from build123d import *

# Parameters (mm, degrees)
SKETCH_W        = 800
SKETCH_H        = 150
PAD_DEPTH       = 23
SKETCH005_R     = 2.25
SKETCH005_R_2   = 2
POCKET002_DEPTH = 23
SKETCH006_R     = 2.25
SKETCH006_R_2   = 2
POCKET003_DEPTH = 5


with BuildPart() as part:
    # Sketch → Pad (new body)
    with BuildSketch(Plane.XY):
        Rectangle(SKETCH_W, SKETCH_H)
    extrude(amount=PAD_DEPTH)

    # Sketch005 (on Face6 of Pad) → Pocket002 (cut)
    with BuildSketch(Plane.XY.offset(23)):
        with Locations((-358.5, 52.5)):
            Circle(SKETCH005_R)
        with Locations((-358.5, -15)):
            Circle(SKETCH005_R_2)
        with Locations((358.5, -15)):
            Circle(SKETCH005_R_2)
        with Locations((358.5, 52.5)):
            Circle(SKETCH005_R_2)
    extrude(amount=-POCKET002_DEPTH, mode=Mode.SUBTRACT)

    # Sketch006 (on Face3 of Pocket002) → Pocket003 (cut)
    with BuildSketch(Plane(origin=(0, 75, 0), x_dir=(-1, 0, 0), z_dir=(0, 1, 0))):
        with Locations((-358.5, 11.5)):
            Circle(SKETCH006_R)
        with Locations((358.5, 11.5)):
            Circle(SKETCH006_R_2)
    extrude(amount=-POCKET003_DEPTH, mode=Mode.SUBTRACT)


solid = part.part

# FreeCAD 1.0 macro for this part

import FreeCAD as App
import Part
import Sketcher
from FreeCAD import Vector


def add_polygon(sketch, points):
    """Adds a closed chain of lines whose ends are joined by coincident constraints."""
    first, n = sketch.GeometryCount, len(points)
    for a, b in zip(points, points[1:] + points[:1]):
        sketch.addGeometry(Part.LineSegment(App.Vector(*a, 0), App.Vector(*b, 0)), False)
    for i in range(n):
        sketch.addConstraint(Sketcher.Constraint("Coincident", first + i, 2, first + (i + 1) % n, 1))

doc = App.newDocument("Part")
params = doc.addObject("Spreadsheet::Sheet", "Params")
for row, (alias, value) in enumerate([
    ("sketch1_width", "800 mm"),
    ("sketch1_height", "150 mm"),
    ("pad1_length", "23 mm"),
    ("sketch2_diameter", "4 mm"),
    ("sketch2_diameter2", "4.5 mm"),
    ("pocket1_length", "23 mm"),
    ("sketch3_diameter", "4 mm"),
    ("sketch3_diameter2", "4.5 mm"),
    ("pocket2_length", "5 mm"),
], start=1):
    params.set(f"A{row}", alias)
    params.set(f"B{row}", "=" + value)
    params.setAlias(f"B{row}", alias)

body = doc.addObject("PartDesign::Body", "Body")

sketch1 = doc.addObject("Sketcher::SketchObject", "Sketch")
body.addObject(sketch1)
sketch1.AttachmentSupport = (doc.XY_Plane, [""])
sketch1.MapMode = "FlatFace"
add_polygon(sketch1, [(-400, 75), (-400, -75), (400, -75), (400, 75)])
sketch1.addConstraint(Sketcher.Constraint("Vertical", 0))
sketch1.addConstraint(Sketcher.Constraint("Horizontal", 1))
sketch1.addConstraint(Sketcher.Constraint("Vertical", 2))
sketch1.addConstraint(Sketcher.Constraint("Horizontal", 3))
sketch1.addConstraint(Sketcher.Constraint("Symmetric", 0, 2, 2, 2, -1, 1))
sketch1.addConstraint(Sketcher.Constraint("DistanceX", 1, 1, 1, 2, 800.0))
sketch1.addConstraint(Sketcher.Constraint("DistanceY", 0, 2, 0, 1, 150.0))
sketch1.setExpression("Constraints[9]", "Params.sketch1_width")
sketch1.setExpression("Constraints[10]", "Params.sketch1_height")
pad1 = doc.addObject("PartDesign::Pad", "Pad")
body.addObject(pad1)
pad1.Profile = sketch1
pad1.setExpression("Length", "Params.pad1_length")

sketch2 = doc.addObject("Sketcher::SketchObject", "Sketch001")
body.addObject(sketch2)
sketch2.AttachmentSupport = (doc.XY_Plane, [""])
sketch2.MapMode = "FlatFace"
sketch2.AttachmentOffset = App.Placement(Vector(0, 0, 23), App.Rotation())
sketch2.addGeometry(Part.Circle(Vector(-358.5, 52.5, 0), Vector(0, 0, 1), 2.2), False)
sketch2.addGeometry(Part.Circle(Vector(-358.5, -15, 0), Vector(0, 0, 1), 2), False)
sketch2.addGeometry(Part.Circle(Vector(358.5, -15, 0), Vector(0, 0, 1), 2), False)
sketch2.addGeometry(Part.Circle(Vector(358.5, 52.5, 0), Vector(0, 0, 1), 2), False)
sketch2.addConstraint(Sketcher.Constraint("Equal", 1, 2))
sketch2.addConstraint(Sketcher.Constraint("Equal", 2, 3))
sketch2.addConstraint(Sketcher.Constraint("Symmetric", 1, 3, 2, 3, -2))
sketch2.addConstraint(Sketcher.Constraint("Symmetric", 0, 3, 3, 3, -2))
sketch2.addConstraint(Sketcher.Constraint("Vertical", 0, 3, 1, 3))
sketch2.addConstraint(Sketcher.Constraint("Diameter", 1, 4.0))
sketch2.addConstraint(Sketcher.Constraint("Diameter", 0, 4.5))
sketch2.addConstraint(Sketcher.Constraint("DistanceY", 1, 3, -1, 1, 15.0))
sketch2.addConstraint(Sketcher.Constraint("DistanceX", 1, 3, 2, 3, 717.0))
sketch2.addConstraint(Sketcher.Constraint("DistanceY", -1, 1, 0, 3, 52.5))
sketch2.setExpression("Constraints[5]", "Params.sketch2_diameter")
sketch2.setExpression("Constraints[6]", "Params.sketch2_diameter2")
pocket1 = doc.addObject("PartDesign::Pocket", "Pocket")
body.addObject(pocket1)
pocket1.Profile = sketch2
pocket1.setExpression("Length", "Params.pocket1_length")

sketch3 = doc.addObject("Sketcher::SketchObject", "Sketch002")
body.addObject(sketch3)
sketch3.AttachmentSupport = (doc.XZ_Plane, [""])
sketch3.MapMode = "FlatFace"
sketch3.AttachmentOffset = App.Placement(Vector(0, 0, -75), App.Rotation())
sketch3.addGeometry(Part.Circle(Vector(358.5, 11.5, 0), Vector(0, 0, 1), 2.2), False)
sketch3.addGeometry(Part.Circle(Vector(-358.5, 11.5, 0), Vector(0, 0, 1), 2), False)
sketch3.addConstraint(Sketcher.Constraint("Symmetric", 0, 3, 1, 3, -2))
sketch3.addConstraint(Sketcher.Constraint("Diameter", 1, 4.0))
sketch3.addConstraint(Sketcher.Constraint("Diameter", 0, 4.5))
sketch3.addConstraint(Sketcher.Constraint("DistanceX", 1, 3, 0, 3, 717.0))
sketch3.addConstraint(Sketcher.Constraint("DistanceY", -1, 1, 0, 3, 11.5))
sketch3.setExpression("Constraints[1]", "Params.sketch3_diameter")
sketch3.setExpression("Constraints[2]", "Params.sketch3_diameter2")
pocket2 = doc.addObject("PartDesign::Pocket", "Pocket001")
body.addObject(pocket2)
pocket2.Profile = sketch3
pocket2.setExpression("Length", "Params.pocket2_length")
pocket2.Reversed = True

doc.recompute()
